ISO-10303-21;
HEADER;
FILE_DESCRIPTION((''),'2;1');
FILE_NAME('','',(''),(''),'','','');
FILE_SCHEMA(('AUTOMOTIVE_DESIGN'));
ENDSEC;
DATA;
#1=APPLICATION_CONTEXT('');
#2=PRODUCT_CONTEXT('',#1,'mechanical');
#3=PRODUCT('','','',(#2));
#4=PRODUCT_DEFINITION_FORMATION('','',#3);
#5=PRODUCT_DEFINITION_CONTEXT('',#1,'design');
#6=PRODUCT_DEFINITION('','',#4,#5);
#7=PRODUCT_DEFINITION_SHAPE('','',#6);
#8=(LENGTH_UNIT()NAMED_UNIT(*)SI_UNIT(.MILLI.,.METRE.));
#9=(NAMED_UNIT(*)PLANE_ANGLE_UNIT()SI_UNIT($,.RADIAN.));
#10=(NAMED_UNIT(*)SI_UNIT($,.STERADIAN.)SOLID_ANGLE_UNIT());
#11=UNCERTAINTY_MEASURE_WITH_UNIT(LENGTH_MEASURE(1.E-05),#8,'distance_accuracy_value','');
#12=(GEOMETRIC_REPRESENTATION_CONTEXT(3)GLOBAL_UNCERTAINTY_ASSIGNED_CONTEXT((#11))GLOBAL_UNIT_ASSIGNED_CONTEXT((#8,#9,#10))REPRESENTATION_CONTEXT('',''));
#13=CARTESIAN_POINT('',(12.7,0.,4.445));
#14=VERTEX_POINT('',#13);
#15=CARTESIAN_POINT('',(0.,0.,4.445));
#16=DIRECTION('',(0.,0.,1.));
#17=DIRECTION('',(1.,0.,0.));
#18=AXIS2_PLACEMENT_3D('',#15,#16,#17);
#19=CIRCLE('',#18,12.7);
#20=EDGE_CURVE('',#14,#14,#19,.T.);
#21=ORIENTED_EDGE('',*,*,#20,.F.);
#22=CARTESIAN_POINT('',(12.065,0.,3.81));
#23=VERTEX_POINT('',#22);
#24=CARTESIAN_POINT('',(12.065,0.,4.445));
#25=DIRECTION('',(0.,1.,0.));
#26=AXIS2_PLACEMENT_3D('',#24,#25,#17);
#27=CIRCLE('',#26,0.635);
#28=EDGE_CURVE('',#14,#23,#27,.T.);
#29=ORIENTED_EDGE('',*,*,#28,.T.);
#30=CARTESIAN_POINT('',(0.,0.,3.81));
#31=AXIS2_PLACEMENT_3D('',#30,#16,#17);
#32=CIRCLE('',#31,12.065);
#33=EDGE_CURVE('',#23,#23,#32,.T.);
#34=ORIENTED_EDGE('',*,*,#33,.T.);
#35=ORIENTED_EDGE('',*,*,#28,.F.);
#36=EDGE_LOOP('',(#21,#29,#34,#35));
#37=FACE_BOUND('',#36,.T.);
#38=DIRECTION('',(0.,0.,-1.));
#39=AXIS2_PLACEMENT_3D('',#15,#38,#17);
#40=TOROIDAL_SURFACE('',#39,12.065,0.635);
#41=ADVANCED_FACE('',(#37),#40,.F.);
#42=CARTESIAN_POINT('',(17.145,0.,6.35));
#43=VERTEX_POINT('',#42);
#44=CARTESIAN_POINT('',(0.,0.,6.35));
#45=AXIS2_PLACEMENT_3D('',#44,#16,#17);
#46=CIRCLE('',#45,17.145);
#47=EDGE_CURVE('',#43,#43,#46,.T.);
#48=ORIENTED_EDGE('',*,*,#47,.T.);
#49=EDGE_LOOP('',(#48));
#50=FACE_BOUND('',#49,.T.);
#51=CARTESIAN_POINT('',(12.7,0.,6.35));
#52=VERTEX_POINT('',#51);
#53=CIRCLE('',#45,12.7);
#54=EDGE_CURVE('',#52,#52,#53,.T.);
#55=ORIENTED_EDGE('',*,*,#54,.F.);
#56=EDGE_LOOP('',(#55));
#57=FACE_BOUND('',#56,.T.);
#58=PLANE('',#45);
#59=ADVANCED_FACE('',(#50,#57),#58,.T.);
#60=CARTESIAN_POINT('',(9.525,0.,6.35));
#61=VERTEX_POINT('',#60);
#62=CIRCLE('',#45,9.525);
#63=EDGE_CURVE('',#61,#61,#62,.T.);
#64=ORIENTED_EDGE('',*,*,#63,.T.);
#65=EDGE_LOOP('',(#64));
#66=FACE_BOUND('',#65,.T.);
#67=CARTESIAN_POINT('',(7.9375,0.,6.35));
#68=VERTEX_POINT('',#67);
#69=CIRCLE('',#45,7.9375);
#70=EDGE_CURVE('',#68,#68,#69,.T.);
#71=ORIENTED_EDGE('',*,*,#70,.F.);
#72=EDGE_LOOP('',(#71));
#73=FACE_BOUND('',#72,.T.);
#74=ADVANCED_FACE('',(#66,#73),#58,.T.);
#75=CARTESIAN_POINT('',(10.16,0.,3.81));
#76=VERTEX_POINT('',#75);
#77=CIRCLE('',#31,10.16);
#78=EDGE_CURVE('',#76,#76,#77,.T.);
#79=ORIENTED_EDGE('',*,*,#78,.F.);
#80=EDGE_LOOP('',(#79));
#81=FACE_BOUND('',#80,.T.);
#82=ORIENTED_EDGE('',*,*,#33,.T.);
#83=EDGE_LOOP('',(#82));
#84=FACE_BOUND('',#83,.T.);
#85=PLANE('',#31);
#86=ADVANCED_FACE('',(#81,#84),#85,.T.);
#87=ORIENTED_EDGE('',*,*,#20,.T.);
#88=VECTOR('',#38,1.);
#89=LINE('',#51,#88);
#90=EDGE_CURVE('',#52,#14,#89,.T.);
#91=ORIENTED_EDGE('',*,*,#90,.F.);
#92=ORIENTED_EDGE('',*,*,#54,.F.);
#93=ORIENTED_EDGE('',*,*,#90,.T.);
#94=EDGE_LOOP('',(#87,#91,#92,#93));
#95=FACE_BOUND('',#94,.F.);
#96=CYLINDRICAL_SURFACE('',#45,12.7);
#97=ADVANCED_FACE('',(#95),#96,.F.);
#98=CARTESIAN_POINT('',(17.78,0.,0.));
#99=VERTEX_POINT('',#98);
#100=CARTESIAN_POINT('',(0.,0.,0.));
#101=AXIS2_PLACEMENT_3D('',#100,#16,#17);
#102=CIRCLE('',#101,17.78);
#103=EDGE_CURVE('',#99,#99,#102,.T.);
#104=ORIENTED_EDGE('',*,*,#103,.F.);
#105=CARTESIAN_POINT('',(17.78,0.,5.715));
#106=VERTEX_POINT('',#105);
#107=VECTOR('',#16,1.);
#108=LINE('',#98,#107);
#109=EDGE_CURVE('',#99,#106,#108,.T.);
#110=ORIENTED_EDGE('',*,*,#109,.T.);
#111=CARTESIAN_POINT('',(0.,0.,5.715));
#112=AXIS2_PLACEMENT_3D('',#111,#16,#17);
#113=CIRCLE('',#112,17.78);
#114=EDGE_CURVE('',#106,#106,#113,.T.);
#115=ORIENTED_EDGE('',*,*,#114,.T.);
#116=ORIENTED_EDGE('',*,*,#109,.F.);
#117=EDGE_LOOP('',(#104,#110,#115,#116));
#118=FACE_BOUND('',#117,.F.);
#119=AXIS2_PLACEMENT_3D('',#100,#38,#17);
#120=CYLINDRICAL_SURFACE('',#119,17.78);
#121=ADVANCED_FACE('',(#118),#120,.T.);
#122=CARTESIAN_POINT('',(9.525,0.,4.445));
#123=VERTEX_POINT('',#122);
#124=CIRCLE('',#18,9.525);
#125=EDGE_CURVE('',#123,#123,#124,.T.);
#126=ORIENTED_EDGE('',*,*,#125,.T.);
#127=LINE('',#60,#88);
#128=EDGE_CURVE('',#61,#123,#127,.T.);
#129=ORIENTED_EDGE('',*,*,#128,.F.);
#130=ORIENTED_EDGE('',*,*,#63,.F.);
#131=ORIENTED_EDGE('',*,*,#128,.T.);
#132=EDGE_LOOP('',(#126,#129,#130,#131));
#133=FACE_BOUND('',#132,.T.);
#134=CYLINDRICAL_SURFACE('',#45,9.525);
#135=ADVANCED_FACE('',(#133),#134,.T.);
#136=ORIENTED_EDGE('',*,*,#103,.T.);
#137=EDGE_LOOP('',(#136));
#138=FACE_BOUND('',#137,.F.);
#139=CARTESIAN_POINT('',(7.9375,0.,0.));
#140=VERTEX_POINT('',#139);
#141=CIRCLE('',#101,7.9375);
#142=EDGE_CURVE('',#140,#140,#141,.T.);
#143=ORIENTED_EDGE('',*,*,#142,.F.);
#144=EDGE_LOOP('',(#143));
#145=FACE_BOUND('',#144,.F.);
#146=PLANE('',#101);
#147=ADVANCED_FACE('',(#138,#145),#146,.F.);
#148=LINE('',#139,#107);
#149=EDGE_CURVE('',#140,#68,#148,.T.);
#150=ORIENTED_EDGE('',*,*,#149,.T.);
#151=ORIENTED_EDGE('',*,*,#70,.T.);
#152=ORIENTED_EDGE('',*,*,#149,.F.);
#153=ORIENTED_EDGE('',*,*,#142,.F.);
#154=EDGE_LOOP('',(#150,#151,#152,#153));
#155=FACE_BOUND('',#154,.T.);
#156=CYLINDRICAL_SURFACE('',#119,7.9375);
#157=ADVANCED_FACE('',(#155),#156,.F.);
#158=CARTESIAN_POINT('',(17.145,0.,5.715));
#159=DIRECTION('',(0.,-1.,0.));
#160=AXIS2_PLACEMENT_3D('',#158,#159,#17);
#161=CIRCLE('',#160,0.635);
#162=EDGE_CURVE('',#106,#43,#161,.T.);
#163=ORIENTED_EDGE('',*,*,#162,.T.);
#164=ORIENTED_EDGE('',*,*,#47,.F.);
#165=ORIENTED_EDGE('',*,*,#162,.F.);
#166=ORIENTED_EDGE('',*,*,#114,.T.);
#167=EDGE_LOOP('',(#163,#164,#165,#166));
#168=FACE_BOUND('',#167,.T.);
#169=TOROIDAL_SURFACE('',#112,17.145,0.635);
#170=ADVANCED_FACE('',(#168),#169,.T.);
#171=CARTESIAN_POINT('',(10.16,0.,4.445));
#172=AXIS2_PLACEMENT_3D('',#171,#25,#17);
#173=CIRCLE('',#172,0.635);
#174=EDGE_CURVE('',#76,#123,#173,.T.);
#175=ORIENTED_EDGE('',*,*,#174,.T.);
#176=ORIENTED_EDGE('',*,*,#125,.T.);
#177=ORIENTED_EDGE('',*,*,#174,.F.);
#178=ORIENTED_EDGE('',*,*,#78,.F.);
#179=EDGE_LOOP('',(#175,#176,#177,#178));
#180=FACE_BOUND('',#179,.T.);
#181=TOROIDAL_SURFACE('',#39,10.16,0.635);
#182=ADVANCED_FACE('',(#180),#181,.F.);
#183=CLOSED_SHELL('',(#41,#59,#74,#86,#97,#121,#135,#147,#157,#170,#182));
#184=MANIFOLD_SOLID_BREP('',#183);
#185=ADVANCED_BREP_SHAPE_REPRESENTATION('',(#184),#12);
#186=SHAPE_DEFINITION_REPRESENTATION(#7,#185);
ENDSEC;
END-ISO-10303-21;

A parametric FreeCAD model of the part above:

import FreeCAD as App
import Part
import Sketcher
from FreeCAD import Vector
Q = App.Units.Quantity


def edges_at(feature, points):
    """Names of the edges that pass closest to the given points."""
    edges = feature.Shape.Edges
    near = lambda p: min(range(len(edges)), key=lambda i: edges[i].distToShape(Part.Vertex(*p))[0])
    return sorted({f"Edge{near(p) + 1}" for p in points})

doc = App.newDocument("Part")
params = doc.addObject("Spreadsheet::Sheet", "Params")
for row, (alias, value) in enumerate([
    ("sketch1_diameter", "1.4 in"),
    ("sketch1_diameter2", "0.625 in"),
    ("pad1_length", "0.25 in"),
    ("sketch2_diameter", "1 in"),
    ("sketch2_diameter2", "0.75 in"),
    ("pocket1_length", "0.1 in"),
    ("fillet_radius", "0.025 in"),
], start=1):
    params.set(f"A{row}", alias)
    params.set(f"B{row}", "=" + value)
    params.setAlias(f"B{row}", alias)

body = doc.addObject("PartDesign::Body", "Body")

# Sketch on XY plane
sketch1 = body.newObject("Sketcher::SketchObject", "Sketch")
sketch1.AttachmentSupport = (doc.getObject("XY_Plane"), [""])
sketch1.MapMode = "FlatFace"
sketch1.addGeometry([
    Part.Circle(Vector(0, 0, 0), Vector(0, 0, 1), 18),
    Part.Circle(Vector(0, 0, 0), Vector(0, 0, 1), 8),
], False)
sketch1.addConstraint([
    Sketcher.Constraint("Coincident", 0, 3, -1, 1),
    Sketcher.Constraint("Coincident", 1, 3, -1, 1),
    Sketcher.Constraint("Diameter", 0, Q("1.4 in")),
    Sketcher.Constraint("Diameter", 1, Q("0.625 in")),
])
sketch1.setExpression("Constraints[2]", "Params.sketch1_diameter")
sketch1.setExpression("Constraints[3]", "Params.sketch1_diameter2")
pad1 = body.newObject("PartDesign::Pad", "Pad")
pad1.Profile = sketch1
pad1.setExpression("Length", "Params.pad1_length")

# Sketch on XY plane
sketch2 = body.newObject("Sketcher::SketchObject", "Sketch001")
sketch2.AttachmentSupport = (doc.getObject("XY_Plane"), [""])
sketch2.MapMode = "FlatFace"
sketch2.AttachmentOffset = App.Placement(Vector(0, 0, 0.25 * 25.4), App.Rotation())
sketch2.addGeometry([
    Part.Circle(Vector(0, 0, 0), Vector(0, 0, 1), 13),
    Part.Circle(Vector(0, 0, 0), Vector(0, 0, 1), 10),
], False)
sketch2.addConstraint([
    Sketcher.Constraint("Coincident", 0, 3, -1, 1),
    Sketcher.Constraint("Coincident", 1, 3, -1, 1),
    Sketcher.Constraint("Diameter", 0, Q("1 in")),
    Sketcher.Constraint("Diameter", 1, Q("0.75 in")),
])
sketch2.setExpression("Constraints[2]", "Params.sketch2_diameter")
sketch2.setExpression("Constraints[3]", "Params.sketch2_diameter2")
pocket1 = body.newObject("PartDesign::Pocket", "Pocket")
pocket1.Profile = sketch2
pocket1.setExpression("Length", "Params.pocket1_length")
doc.recompute()

fillet = body.newObject("PartDesign::Fillet", "Fillet")
fillet.Base = (pocket1, edges_at(pocket1, [(-17.78, 0, 6.35), (-12.7, 0, 3.81), (-9.525, 0, 3.81)]))
fillet.setExpression("Radius", "Params.fillet_radius")

doc.recompute()
